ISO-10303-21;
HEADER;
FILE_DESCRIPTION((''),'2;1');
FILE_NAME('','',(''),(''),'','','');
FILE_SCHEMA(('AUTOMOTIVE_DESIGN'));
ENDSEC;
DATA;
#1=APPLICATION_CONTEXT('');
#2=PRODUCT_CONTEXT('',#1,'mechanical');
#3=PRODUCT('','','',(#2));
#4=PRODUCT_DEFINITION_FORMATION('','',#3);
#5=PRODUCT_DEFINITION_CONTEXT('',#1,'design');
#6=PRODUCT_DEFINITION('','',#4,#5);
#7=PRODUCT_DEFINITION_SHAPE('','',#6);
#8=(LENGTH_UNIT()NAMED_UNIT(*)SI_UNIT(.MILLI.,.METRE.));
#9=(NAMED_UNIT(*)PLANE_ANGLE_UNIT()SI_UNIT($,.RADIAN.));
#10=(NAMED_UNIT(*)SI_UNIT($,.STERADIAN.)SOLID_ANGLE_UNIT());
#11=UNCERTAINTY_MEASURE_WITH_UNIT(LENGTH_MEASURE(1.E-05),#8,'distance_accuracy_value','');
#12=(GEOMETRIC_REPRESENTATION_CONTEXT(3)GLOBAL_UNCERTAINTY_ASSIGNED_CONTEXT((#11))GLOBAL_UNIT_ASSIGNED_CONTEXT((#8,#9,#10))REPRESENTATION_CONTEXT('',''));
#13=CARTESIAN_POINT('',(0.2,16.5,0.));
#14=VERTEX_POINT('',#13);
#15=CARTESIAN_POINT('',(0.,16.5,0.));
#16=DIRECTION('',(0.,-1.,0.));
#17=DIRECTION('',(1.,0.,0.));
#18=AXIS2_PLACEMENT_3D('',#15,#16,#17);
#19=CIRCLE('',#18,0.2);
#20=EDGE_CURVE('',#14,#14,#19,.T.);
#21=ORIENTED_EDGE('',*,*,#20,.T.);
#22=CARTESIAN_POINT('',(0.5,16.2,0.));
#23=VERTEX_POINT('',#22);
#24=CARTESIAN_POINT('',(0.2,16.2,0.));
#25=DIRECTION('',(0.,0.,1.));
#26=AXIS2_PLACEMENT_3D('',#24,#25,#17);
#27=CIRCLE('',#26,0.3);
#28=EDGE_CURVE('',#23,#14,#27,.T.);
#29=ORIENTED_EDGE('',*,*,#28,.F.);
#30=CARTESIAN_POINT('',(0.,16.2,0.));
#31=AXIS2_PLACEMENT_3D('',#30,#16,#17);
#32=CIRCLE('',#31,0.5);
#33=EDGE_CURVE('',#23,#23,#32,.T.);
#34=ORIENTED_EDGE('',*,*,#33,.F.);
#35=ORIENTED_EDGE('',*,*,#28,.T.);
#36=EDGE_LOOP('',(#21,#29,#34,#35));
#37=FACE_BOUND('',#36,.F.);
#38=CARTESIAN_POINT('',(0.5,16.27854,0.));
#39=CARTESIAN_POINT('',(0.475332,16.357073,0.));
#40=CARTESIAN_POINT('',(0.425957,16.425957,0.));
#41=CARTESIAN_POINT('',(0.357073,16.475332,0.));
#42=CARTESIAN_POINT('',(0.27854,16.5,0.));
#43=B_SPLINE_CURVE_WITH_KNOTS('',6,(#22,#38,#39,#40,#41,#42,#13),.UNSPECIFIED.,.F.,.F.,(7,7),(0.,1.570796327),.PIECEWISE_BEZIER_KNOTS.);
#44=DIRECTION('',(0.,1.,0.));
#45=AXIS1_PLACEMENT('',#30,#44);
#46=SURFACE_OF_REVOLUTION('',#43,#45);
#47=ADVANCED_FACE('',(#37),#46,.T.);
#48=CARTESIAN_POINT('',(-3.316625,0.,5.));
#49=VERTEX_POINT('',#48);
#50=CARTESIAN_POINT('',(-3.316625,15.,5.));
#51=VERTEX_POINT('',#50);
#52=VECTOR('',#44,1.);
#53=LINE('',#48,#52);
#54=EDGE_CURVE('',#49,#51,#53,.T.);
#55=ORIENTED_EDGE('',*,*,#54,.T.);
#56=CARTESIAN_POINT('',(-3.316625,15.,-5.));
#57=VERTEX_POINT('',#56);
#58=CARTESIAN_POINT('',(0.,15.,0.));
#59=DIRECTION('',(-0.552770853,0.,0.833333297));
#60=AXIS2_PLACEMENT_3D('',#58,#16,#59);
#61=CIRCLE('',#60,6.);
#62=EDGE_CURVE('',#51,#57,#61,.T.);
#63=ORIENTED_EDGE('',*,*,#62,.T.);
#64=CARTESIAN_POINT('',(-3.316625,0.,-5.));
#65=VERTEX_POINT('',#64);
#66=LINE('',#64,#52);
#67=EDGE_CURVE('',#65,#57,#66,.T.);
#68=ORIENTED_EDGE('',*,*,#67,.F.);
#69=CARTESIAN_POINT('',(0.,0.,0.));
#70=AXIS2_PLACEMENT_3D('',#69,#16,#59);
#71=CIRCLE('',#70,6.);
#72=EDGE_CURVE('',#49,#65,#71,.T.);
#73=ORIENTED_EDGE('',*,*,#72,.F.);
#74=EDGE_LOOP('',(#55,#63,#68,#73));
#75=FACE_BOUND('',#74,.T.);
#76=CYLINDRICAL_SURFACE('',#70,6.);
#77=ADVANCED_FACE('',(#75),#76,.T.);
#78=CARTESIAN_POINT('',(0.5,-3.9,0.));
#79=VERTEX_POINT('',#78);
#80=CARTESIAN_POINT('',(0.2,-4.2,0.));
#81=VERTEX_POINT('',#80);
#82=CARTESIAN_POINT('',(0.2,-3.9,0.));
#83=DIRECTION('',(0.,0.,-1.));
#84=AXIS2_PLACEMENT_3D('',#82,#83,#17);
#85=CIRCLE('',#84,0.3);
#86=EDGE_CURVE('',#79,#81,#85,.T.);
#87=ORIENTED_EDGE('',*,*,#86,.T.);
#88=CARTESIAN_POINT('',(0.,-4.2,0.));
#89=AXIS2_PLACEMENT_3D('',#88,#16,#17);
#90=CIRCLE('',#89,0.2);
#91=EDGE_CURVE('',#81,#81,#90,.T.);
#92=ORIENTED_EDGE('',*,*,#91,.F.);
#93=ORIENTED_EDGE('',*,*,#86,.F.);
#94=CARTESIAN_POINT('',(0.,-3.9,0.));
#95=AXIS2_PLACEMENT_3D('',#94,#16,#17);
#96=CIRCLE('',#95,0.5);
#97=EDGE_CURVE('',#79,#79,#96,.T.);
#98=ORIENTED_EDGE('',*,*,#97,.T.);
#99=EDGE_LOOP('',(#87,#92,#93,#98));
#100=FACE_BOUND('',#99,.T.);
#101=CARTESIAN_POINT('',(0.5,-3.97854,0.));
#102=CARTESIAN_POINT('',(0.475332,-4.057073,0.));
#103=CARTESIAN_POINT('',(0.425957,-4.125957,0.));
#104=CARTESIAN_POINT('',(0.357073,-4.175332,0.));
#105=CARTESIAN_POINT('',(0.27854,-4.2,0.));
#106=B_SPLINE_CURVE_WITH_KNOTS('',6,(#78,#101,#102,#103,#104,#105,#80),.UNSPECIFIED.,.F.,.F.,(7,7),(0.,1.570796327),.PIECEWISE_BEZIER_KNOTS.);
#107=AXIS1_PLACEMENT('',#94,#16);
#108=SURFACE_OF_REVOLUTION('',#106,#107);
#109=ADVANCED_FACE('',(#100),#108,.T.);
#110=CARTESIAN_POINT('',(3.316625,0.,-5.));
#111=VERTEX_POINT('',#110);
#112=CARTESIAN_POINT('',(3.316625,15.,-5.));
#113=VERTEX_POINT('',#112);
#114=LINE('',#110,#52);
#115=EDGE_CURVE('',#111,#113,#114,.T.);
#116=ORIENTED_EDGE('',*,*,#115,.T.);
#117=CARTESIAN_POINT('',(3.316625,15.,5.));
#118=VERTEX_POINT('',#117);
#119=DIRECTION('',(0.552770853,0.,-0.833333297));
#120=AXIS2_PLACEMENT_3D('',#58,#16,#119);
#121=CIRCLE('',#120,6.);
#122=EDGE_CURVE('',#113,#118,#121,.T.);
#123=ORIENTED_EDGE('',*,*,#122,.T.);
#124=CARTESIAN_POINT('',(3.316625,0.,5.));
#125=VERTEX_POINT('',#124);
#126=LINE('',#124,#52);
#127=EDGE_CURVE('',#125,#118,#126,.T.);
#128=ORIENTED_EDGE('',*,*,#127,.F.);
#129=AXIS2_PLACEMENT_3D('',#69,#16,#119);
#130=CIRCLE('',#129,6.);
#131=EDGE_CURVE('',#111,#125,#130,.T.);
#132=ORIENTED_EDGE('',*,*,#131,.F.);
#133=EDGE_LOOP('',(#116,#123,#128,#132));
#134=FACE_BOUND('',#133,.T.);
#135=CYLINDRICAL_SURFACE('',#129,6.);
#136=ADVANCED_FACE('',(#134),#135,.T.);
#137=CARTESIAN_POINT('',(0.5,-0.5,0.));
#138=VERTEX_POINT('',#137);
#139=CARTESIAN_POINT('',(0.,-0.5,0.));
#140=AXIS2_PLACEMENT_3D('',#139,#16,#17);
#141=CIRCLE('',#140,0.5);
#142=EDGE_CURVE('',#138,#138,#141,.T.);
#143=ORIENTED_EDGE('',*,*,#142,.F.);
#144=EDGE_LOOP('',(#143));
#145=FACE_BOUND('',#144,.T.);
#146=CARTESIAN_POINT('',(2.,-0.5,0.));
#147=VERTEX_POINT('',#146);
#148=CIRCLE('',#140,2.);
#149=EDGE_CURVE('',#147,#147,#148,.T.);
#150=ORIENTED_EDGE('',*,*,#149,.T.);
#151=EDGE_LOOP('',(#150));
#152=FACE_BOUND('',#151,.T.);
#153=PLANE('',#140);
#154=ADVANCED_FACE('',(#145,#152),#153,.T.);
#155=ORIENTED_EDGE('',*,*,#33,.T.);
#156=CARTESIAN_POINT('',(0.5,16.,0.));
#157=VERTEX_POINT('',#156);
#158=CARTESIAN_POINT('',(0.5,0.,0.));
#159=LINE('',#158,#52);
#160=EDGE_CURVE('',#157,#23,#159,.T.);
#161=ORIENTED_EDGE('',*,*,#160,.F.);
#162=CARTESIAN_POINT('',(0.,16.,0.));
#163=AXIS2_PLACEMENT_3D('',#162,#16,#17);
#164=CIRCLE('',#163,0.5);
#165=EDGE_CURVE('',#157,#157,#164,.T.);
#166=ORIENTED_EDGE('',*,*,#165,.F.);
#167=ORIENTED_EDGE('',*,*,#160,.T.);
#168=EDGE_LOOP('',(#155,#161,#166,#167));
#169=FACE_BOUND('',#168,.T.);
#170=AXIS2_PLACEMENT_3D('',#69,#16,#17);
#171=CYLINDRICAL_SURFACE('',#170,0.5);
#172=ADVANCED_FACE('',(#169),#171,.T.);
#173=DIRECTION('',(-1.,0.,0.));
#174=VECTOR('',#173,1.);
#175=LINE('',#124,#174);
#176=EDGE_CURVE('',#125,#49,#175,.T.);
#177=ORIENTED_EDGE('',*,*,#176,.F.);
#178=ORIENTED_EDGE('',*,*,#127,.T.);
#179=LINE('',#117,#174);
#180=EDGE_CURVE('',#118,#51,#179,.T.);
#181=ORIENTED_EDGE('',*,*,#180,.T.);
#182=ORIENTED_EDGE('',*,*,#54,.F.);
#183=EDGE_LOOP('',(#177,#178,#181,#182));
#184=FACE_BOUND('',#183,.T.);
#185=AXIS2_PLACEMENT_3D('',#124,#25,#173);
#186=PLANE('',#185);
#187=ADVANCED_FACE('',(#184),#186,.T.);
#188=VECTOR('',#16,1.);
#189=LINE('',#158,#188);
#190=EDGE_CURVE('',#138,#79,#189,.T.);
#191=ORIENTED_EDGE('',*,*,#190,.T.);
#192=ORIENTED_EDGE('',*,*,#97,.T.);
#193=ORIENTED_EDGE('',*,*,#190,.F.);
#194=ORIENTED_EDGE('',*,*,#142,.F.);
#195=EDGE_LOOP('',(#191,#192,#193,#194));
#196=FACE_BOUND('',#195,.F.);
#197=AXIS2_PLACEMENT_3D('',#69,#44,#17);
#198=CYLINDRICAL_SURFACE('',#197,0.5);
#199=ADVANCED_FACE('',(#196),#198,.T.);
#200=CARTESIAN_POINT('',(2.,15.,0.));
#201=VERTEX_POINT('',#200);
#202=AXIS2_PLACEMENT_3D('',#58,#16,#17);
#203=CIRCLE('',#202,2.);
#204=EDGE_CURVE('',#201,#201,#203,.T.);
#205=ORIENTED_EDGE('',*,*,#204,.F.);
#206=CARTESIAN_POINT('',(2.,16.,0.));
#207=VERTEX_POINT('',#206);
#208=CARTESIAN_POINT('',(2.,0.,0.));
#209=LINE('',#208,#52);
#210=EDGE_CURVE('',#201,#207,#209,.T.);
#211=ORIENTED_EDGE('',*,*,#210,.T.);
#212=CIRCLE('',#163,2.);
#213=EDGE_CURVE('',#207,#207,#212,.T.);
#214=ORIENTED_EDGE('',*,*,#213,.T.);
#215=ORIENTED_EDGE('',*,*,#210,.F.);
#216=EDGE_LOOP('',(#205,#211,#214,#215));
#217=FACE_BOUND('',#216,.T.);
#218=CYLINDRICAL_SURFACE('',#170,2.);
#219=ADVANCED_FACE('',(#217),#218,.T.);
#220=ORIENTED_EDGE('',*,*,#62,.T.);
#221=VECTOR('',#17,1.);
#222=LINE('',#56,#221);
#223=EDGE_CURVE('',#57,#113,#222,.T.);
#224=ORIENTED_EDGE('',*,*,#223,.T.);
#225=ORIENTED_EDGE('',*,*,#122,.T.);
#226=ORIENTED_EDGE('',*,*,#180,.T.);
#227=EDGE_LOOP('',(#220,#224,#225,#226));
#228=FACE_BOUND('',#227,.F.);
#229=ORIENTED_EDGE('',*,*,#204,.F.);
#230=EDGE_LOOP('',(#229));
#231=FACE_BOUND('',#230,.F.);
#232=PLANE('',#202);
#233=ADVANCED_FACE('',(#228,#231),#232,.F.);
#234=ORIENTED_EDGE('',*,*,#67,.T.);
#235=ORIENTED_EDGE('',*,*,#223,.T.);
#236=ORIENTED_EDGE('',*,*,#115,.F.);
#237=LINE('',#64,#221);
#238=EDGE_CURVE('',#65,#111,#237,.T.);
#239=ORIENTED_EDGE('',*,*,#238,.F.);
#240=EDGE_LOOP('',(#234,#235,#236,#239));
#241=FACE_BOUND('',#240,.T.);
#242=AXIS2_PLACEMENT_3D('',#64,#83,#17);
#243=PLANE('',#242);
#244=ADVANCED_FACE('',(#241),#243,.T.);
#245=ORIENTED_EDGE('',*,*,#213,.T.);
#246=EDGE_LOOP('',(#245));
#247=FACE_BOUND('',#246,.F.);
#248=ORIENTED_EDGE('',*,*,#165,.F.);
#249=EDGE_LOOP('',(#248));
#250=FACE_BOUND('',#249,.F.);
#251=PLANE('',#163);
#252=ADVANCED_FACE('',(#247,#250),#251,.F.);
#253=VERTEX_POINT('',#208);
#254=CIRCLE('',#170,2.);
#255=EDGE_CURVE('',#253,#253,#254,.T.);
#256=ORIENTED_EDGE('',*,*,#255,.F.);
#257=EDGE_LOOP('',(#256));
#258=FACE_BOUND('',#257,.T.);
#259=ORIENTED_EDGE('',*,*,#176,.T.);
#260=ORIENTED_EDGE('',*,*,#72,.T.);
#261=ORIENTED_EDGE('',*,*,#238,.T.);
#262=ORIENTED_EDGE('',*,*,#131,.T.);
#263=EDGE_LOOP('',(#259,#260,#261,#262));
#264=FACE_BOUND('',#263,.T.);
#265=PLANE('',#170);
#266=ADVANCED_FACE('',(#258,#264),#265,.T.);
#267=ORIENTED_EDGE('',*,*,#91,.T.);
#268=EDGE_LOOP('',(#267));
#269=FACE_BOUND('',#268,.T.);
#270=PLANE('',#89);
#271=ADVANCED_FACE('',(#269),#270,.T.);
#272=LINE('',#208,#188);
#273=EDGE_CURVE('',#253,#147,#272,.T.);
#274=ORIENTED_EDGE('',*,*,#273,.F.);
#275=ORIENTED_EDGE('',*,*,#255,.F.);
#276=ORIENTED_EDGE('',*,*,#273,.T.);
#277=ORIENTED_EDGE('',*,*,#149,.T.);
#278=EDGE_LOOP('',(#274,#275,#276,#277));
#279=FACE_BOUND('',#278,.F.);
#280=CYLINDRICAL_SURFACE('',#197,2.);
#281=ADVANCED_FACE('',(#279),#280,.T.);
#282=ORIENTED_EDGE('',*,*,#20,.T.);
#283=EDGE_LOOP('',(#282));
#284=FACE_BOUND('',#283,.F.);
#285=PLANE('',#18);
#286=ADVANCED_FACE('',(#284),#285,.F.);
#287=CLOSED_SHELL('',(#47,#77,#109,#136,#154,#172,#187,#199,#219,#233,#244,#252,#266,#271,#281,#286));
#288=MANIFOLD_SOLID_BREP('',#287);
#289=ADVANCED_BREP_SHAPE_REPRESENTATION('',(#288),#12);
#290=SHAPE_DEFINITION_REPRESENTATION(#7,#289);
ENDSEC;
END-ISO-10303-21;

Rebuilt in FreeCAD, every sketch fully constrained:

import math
import FreeCAD as App
import Part
import Sketcher
Q = App.Units.Quantity


def edges_at(feature, points):
    """Names of the edges that pass closest to the given points."""
    edges = feature.Shape.Edges
    near = lambda p: min(range(len(edges)), key=lambda i: edges[i].distToShape(Part.Vertex(*p))[0])
    return sorted({f"Edge{near(p) + 1}" for p in points})

doc = App.newDocument("Part")
body = doc.addObject("PartDesign::Body", "Body")

sketch1 = body.newObject("Sketcher::SketchObject", "Sketch")
sketch1.AttachmentSupport = (doc.getObject("XZ_Plane"), [""])
sketch1.MapMode = "FlatFace"
sketch1.addGeometry(Part.LineSegment(App.Vector(-3.316625, -5, 0), App.Vector(3.316625, -5, 0)), False)
sketch1.addGeometry(Part.ArcOfCircle(Part.Circle(App.Vector(0, 0, 0), App.Vector(0, 0, 1), 6), math.radians(-56.442687), math.radians(56.442687)), False)
sketch1.addGeometry(Part.LineSegment(App.Vector(3.316625, 5, 0), App.Vector(-3.316625, 5, 0)), False)
sketch1.addGeometry(Part.ArcOfCircle(Part.Circle(App.Vector(0, 0, 0), App.Vector(0, 0, 1), 6), math.radians(123.557313), math.radians(236.442687)), False)
sketch1.addGeometry(Part.Circle(App.Vector(0, 0, 0), App.Vector(0, 0, 1), 2), False)
sketch1.addConstraint(Sketcher.Constraint("Coincident", 0, 2, 1, 1))
sketch1.addConstraint(Sketcher.Constraint("Coincident", 1, 2, 2, 1))
sketch1.addConstraint(Sketcher.Constraint("Coincident", 2, 2, 3, 1))
sketch1.addConstraint(Sketcher.Constraint("Coincident", 3, 2, 0, 1))
sketch1.addConstraint(Sketcher.Constraint("Horizontal", 0))
sketch1.addConstraint(Sketcher.Constraint("Horizontal", 2))
sketch1.addConstraint(Sketcher.Constraint("Coincident", 1, 3, -1, 1))
sketch1.addConstraint(Sketcher.Constraint("Coincident", 3, 3, -1, 1))
sketch1.addConstraint(Sketcher.Constraint("Coincident", 4, 3, -1, 1))
sketch1.addConstraint(Sketcher.Constraint("Equal", 1, 3))
sketch1.addConstraint(Sketcher.Constraint("Vertical", 0, 2, 1, 2))
sketch1.addConstraint(Sketcher.Constraint("Diameter", 4, Q("4 mm")))
sketch1.addConstraint(Sketcher.Constraint("Radius", 1, Q("6 mm")))
sketch1.addConstraint(Sketcher.Constraint("DistanceY", 0, 2, -1, 1, Q("5 mm")))
pad1 = body.newObject("PartDesign::Pad", "Pad")
pad1.Profile = sketch1
pad1.Length = 15
pad1.Reversed = True

sketch2 = body.newObject("Sketcher::SketchObject", "Sketch001")
sketch2.AttachmentSupport = (doc.getObject("XZ_Plane"), [""])
sketch2.MapMode = "FlatFace"
sketch2.addGeometry(Part.Circle(App.Vector(0, 0, 0), App.Vector(0, 0, 1), 2), False)
sketch2.addGeometry(Part.Circle(App.Vector(0, 0, 0), App.Vector(0, 0, 1), 0.5), False)
sketch2.addConstraint(Sketcher.Constraint("Coincident", 0, 3, -1, 1))
sketch2.addConstraint(Sketcher.Constraint("Coincident", 1, 3, -1, 1))
sketch2.addConstraint(Sketcher.Constraint("Diameter", 0, Q("4 mm")))
sketch2.addConstraint(Sketcher.Constraint("Diameter", 1, Q("1 mm")))
pad2 = body.newObject("PartDesign::Pad", "Pad001")
pad2.Profile = sketch2
pad2.Type = "TwoLengths"
pad2.Length = 0.5
pad2.Length2 = 16

sketch3 = body.newObject("Sketcher::SketchObject", "Sketch002")
sketch3.AttachmentSupport = (doc.getObject("XZ_Plane"), [""])
sketch3.MapMode = "FlatFace"
sketch3.addGeometry(Part.Circle(App.Vector(0, 0, 0), App.Vector(0, 0, 1), 0.5), False)
sketch3.addConstraint(Sketcher.Constraint("Coincident", 0, 3, -1, 1))
sketch3.addConstraint(Sketcher.Constraint("Diameter", 0, Q("1 mm")))
pad3 = body.newObject("PartDesign::Pad", "Pad002")
pad3.Profile = sketch3
pad3.Type = "TwoLengths"
pad3.Length = 4.2
pad3.Length2 = 16.5
doc.recompute()

fillet = body.newObject("PartDesign::Fillet", "Fillet")
fillet.Base = (pad3, edges_at(pad3, [(-0.5, -4.2, 0), (-0.5, 16.5, 0)]))
fillet.Radius = 0.3

doc.recompute()
